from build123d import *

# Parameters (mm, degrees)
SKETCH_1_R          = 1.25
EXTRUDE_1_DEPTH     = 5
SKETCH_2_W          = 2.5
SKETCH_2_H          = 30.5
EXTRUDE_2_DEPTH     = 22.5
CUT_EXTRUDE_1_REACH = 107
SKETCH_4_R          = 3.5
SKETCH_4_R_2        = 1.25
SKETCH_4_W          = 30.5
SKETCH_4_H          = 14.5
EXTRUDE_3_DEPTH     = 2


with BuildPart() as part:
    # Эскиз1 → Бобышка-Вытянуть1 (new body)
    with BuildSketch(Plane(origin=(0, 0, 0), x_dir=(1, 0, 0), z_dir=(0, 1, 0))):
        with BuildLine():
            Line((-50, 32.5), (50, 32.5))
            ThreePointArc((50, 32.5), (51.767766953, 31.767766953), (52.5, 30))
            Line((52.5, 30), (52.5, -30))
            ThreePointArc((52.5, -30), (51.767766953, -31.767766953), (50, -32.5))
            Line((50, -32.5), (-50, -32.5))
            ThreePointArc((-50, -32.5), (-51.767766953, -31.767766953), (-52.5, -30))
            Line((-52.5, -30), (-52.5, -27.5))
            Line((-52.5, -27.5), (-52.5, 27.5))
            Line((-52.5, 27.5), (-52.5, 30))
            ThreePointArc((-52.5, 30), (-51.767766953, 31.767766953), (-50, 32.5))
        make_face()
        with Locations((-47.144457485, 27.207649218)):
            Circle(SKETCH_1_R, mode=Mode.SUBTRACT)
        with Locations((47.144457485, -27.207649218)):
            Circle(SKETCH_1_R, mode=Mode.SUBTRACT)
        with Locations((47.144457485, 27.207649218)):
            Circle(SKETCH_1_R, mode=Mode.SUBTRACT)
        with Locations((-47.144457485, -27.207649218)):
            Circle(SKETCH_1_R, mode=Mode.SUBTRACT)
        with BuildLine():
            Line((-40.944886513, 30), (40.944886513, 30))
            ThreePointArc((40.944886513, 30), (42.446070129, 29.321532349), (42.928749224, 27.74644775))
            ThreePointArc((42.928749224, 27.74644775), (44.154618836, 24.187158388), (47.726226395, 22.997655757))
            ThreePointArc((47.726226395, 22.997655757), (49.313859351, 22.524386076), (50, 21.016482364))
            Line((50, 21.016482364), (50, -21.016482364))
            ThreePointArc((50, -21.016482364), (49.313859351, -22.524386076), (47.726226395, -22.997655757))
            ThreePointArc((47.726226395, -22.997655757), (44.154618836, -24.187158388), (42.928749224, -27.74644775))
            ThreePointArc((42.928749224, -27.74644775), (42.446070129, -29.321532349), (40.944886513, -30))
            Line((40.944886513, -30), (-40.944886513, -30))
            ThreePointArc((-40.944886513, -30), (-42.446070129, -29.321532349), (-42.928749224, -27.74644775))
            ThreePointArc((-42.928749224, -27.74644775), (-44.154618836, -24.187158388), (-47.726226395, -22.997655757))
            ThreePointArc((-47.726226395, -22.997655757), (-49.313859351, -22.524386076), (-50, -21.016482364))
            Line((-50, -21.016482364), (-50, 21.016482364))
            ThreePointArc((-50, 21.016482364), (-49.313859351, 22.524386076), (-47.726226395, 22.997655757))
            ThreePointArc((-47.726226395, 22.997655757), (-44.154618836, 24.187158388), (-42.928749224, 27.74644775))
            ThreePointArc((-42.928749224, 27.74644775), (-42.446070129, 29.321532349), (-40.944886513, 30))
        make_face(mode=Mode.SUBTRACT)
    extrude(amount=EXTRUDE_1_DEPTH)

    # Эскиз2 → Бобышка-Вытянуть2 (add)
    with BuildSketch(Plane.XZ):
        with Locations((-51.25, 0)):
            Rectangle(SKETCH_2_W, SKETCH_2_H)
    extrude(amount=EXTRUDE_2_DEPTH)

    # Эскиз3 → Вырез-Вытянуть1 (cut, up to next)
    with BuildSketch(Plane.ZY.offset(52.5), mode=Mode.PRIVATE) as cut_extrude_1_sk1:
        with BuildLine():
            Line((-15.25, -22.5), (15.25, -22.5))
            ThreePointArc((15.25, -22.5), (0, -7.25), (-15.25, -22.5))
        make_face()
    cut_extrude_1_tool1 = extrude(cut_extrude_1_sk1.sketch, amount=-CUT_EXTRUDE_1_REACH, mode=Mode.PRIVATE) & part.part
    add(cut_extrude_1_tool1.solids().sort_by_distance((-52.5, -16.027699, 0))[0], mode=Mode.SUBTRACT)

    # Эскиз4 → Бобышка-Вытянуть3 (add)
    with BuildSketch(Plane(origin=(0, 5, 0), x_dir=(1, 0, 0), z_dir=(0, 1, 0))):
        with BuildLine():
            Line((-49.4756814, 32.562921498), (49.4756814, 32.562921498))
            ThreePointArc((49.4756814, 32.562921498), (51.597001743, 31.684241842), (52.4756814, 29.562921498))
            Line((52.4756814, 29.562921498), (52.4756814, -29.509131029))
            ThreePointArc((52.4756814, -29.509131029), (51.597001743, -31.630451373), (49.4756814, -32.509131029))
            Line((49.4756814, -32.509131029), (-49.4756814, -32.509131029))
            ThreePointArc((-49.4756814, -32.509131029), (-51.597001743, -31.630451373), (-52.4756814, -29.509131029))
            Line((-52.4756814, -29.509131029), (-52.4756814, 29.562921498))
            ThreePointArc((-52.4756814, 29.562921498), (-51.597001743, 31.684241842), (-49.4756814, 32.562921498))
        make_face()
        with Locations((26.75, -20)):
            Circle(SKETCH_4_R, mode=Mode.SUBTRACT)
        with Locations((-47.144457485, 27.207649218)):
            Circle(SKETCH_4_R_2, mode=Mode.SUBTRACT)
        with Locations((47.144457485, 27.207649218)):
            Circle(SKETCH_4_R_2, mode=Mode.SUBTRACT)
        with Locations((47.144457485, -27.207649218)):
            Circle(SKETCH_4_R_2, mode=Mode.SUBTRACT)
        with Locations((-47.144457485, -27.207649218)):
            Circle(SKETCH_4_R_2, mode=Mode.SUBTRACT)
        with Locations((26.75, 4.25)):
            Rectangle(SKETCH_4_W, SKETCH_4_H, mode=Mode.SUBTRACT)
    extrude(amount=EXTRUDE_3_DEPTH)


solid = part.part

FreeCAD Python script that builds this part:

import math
import FreeCAD as App
import Part
import Sketcher

doc = App.newDocument("Part")
params = doc.addObject("Spreadsheet::Sheet", "Params")
for row, (alias, value) in enumerate([
    ("sketch1_radius", "2 mm"),
    ("sketch1_diameter", "2.5 mm"),
    ("sketch1_radius2", "2.5 mm"),
    ("sketch1_width", "100 mm"),
    ("sketch1_height", "60 mm"),
    ("pad1_length", "5 mm"),
    ("sketch2_width", "2.5 mm"),
    ("sketch2_height", "30.5 mm"),
    ("pad2_length", "22.5 mm"),
    ("sketch3_radius", "15.25 mm"),
    ("sketch4_diameter", "7 mm"),
    ("sketch4_radius", "3 mm"),
    ("sketch4_diameter2", "2.5 mm"),
    ("sketch4_width", "30.5 mm"),
    ("sketch4_height", "14.5 mm"),
    ("pad3_length", "2 mm"),
], start=1):
    params.set(f"A{row}", alias)
    params.set(f"B{row}", "=" + value)
    params.setAlias(f"B{row}", alias)

body = doc.addObject("PartDesign::Body", "Body")

sketch1 = body.newObject("Sketcher::SketchObject", "Sketch")
sketch1.AttachmentSupport = (doc.getObject("XZ_Plane"), [""])
sketch1.MapMode = "FlatFace"
sketch1.addGeometry([
    Part.LineSegment(App.Vector(50, -32.5, 0), App.Vector(-50, -32.5, 0)),
    Part.ArcOfCircle(Part.Circle(App.Vector(-50, -30, 0), App.Vector(0, 0, 1), 2.5), math.radians(180), math.radians(270)),
    Part.LineSegment(App.Vector(-52.5, -30, 0), App.Vector(-52.5, 30, 0)),
    Part.ArcOfCircle(Part.Circle(App.Vector(-50, 30, 0), App.Vector(0, 0, 1), 2.5), math.radians(90), math.radians(180)),
    Part.LineSegment(App.Vector(-50, 32.5, 0), App.Vector(50, 32.5, 0)),
    Part.ArcOfCircle(Part.Circle(App.Vector(50, 30, 0), App.Vector(0, 0, 1), 2.5), math.radians(0), math.radians(90)),
    Part.LineSegment(App.Vector(52.5, 30, 0), App.Vector(52.5, -30, 0)),
    Part.ArcOfCircle(Part.Circle(App.Vector(50, -30, 0), App.Vector(0, 0, 1), 2.5), math.radians(-90), math.radians(0)),
    Part.Circle(App.Vector(47.1, 27.2, 0), App.Vector(0, 0, 1), 1.2),
    Part.Circle(App.Vector(-47.1, 27.2, 0), App.Vector(0, 0, 1), 1.2),
    Part.Circle(App.Vector(47.1, -27.2, 0), App.Vector(0, 0, 1), 1.2),
    Part.LineSegment(App.Vector(-40.9, -30, 0), App.Vector(40.9, -30, 0)),
    Part.ArcOfCircle(Part.Circle(App.Vector(40.9, -28, 0), App.Vector(0, 0, 1), 2), math.radians(-90), math.radians(7)),
    Part.ArcOfCircle(Part.Circle(App.Vector(47.1, -27.2, 0), App.Vector(0, 0, 1), 4.3), math.radians(82), math.radians(187)),
    Part.ArcOfCircle(Part.Circle(App.Vector(48, -21, 0), App.Vector(0, 0, 1), 2), math.radians(-98), math.radians(0)),
    Part.LineSegment(App.Vector(50, -21, 0), App.Vector(50, 21, 0)),
    Part.ArcOfCircle(Part.Circle(App.Vector(48, 21, 0), App.Vector(0, 0, 1), 2), math.radians(0), math.radians(98)),
    Part.ArcOfCircle(Part.Circle(App.Vector(47.1, 27.2, 0), App.Vector(0, 0, 1), 4.3), math.radians(173), math.radians(278)),
    Part.ArcOfCircle(Part.Circle(App.Vector(40.9, 28, 0), App.Vector(0, 0, 1), 2), math.radians(-7), math.radians(90)),
    Part.LineSegment(App.Vector(40.9, 30, 0), App.Vector(-40.9, 30, 0)),
    Part.ArcOfCircle(Part.Circle(App.Vector(-40.9, 28, 0), App.Vector(0, 0, 1), 2), math.radians(90), math.radians(187)),
    Part.ArcOfCircle(Part.Circle(App.Vector(-47.1, 27.2, 0), App.Vector(0, 0, 1), 4.3), math.radians(-98), math.radians(7)),
    Part.ArcOfCircle(Part.Circle(App.Vector(-48, 21, 0), App.Vector(0, 0, 1), 2), math.radians(82), math.radians(180)),
    Part.LineSegment(App.Vector(-50, 21, 0), App.Vector(-50, -21, 0)),
    Part.ArcOfCircle(Part.Circle(App.Vector(-48, -21, 0), App.Vector(0, 0, 1), 2), math.radians(-180), math.radians(-82)),
    Part.ArcOfCircle(Part.Circle(App.Vector(-47.1, -27.2, 0), App.Vector(0, 0, 1), 4.3), math.radians(-7), math.radians(98)),
    Part.ArcOfCircle(Part.Circle(App.Vector(-40.9, -28, 0), App.Vector(0, 0, 1), 2), math.radians(173), math.radians(270)),
    Part.Circle(App.Vector(-47.1, -27.2, 0), App.Vector(0, 0, 1), 1.2),
], False)
sketch1.addConstraint([
    Sketcher.Constraint("Tangent", 0, 2, 1, 2),
    Sketcher.Constraint("Tangent", 1, 1, 2, 1),
    Sketcher.Constraint("Tangent", 2, 2, 3, 2),
    Sketcher.Constraint("Tangent", 3, 1, 4, 1),
    Sketcher.Constraint("Tangent", 4, 2, 5, 2),
    Sketcher.Constraint("Tangent", 5, 1, 6, 1),
    Sketcher.Constraint("Tangent", 6, 2, 7, 2),
    Sketcher.Constraint("Tangent", 7, 1, 0, 1),
    Sketcher.Constraint("Tangent", 11, 2, 12, 1),
    Sketcher.Constraint("Tangent", 12, 2, 13, 2),
    Sketcher.Constraint("Tangent", 13, 1, 14, 1),
    Sketcher.Constraint("Tangent", 14, 2, 15, 1),
    Sketcher.Constraint("Tangent", 15, 2, 16, 1),
    Sketcher.Constraint("Tangent", 16, 2, 17, 2),
    Sketcher.Constraint("Tangent", 17, 1, 18, 1),
    Sketcher.Constraint("Tangent", 18, 2, 19, 1),
    Sketcher.Constraint("Tangent", 19, 2, 20, 1),
    Sketcher.Constraint("Tangent", 20, 2, 21, 2),
    Sketcher.Constraint("Tangent", 21, 1, 22, 1),
    Sketcher.Constraint("Tangent", 22, 2, 23, 1),
    Sketcher.Constraint("Tangent", 23, 2, 24, 1),
    Sketcher.Constraint("Tangent", 24, 2, 25, 2),
    Sketcher.Constraint("Tangent", 25, 1, 26, 1),
    Sketcher.Constraint("Tangent", 26, 2, 11, 1),
    Sketcher.Constraint("Horizontal", 0),
    Sketcher.Constraint("Vertical", 2),
    Sketcher.Constraint("Horizontal", 4),
    Sketcher.Constraint("Vertical", 6),
    Sketcher.Constraint("Horizontal", 11),
    Sketcher.Constraint("Vertical", 15),
    Sketcher.Constraint("Horizontal", 19),
    Sketcher.Constraint("Vertical", 23),
    Sketcher.Constraint("Coincident", 13, 3, 10, 3),
    Sketcher.Constraint("Coincident", 17, 3, 8, 3),
    Sketcher.Constraint("Coincident", 21, 3, 9, 3),
    Sketcher.Constraint("Coincident", 27, 3, 25, 3),
    Sketcher.Constraint("Equal", 1, 3),
    Sketcher.Constraint("Equal", 3, 5),
    Sketcher.Constraint("Equal", 5, 7),
    Sketcher.Constraint("Equal", 8, 9),
    Sketcher.Constraint("Equal", 9, 10),
    Sketcher.Constraint("Equal", 12, 14),
    Sketcher.Constraint("Equal", 14, 16),
    Sketcher.Constraint("Equal", 13, 17),
    Sketcher.Constraint("Equal", 16, 18),
    Sketcher.Constraint("Equal", 18, 20),
    Sketcher.Constraint("Equal", 17, 21),
    Sketcher.Constraint("Equal", 20, 22),
    Sketcher.Constraint("Equal", 22, 24),
    Sketcher.Constraint("Equal", 21, 25),
    Sketcher.Constraint("Equal", 24, 26),
    Sketcher.Constraint("Equal", 10, 27),
    Sketcher.Constraint("Symmetric", 1, 3, 5, 3, -1, 1),
    Sketcher.Constraint("Symmetric", 9, 3, 10, 3, -1, 1),
    Sketcher.Constraint("Symmetric", 16, 3, 24, 3, -1, 1),
    Sketcher.Constraint("Symmetric", 18, 3, 26, 3, -1, 1),
    Sketcher.Constraint("Symmetric", 8, 3, 9, 3, -2),
    Sketcher.Constraint("Horizontal", 6, 2, 11, 2),
    Sketcher.Constraint("Vertical", 7, 1, 14, 2),
    Sketcher.Constraint("Radius", 12, 2.0),
    Sketcher.Constraint("Diameter", 8, 2.5),
    Sketcher.Constraint("Radius", 1, 2.5),
    Sketcher.Constraint("DistanceX", 0, 2, 0, 1, 100.0),
    Sketcher.Constraint("DistanceY", 2, 1, 2, 2, 60.0),
    Sketcher.Constraint("Radius", 13, 4.25),
    Sketcher.Constraint("DistanceY", 10, 3, 8, 3, 54.415298),
    Sketcher.Constraint("DistanceX", 11, 1, 11, 2, 81.889773),
])
sketch1.setExpression("Constraints[59]", "Params.sketch1_radius")
sketch1.setExpression("Constraints[60]", "Params.sketch1_diameter")
sketch1.setExpression("Constraints[61]", "Params.sketch1_radius2")
sketch1.setExpression("Constraints[62]", "Params.sketch1_width")
sketch1.setExpression("Constraints[63]", "Params.sketch1_height")
pad1 = body.newObject("PartDesign::Pad", "Pad")
pad1.Profile = sketch1
pad1.setExpression("Length", "Params.pad1_length")
pad1.Reversed = True

sketch2 = body.newObject("Sketcher::SketchObject", "Sketch001")
sketch2.AttachmentSupport = (doc.getObject("XZ_Plane"), [""])
sketch2.MapMode = "FlatFace"
sketch2.addGeometry([
    Part.LineSegment(App.Vector(-52.5, 15.2, 0), App.Vector(-52.5, -15.2, 0)),
    Part.LineSegment(App.Vector(-52.5, -15.2, 0), App.Vector(-50, -15.2, 0)),
    Part.LineSegment(App.Vector(-50, -15.2, 0), App.Vector(-50, 15.2, 0)),
    Part.LineSegment(App.Vector(-50, 15.2, 0), App.Vector(-52.5, 15.2, 0)),
], False)
sketch2.addConstraint([
    Sketcher.Constraint("Coincident", 0, 2, 1, 1),
    Sketcher.Constraint("Coincident", 1, 2, 2, 1),
    Sketcher.Constraint("Coincident", 2, 2, 3, 1),
    Sketcher.Constraint("Coincident", 3, 2, 0, 1),
    Sketcher.Constraint("Vertical", 0),
    Sketcher.Constraint("Horizontal", 1),
    Sketcher.Constraint("Vertical", 2),
    Sketcher.Constraint("Horizontal", 3),
    Sketcher.Constraint("DistanceX", 1, 1, 1, 2, 2.5),
    Sketcher.Constraint("DistanceY", 0, 2, 0, 1, 30.5),
    Sketcher.Constraint("DistanceX", 1, 2, -1, 1, 50.0),
    Sketcher.Constraint("DistanceY", 0, 2, -1, 1, 15.25),
])
sketch2.setExpression("Constraints[8]", "Params.sketch2_width")
sketch2.setExpression("Constraints[9]", "Params.sketch2_height")
pad2 = body.newObject("PartDesign::Pad", "Pad001")
pad2.Profile = sketch2
pad2.setExpression("Length", "Params.pad2_length")

sketch3 = body.newObject("Sketcher::SketchObject", "Sketch002")
sketch3.AttachmentSupport = (doc.getObject("YZ_Plane"), [""])
sketch3.MapMode = "FlatFace"
sketch3.AttachmentOffset = App.Placement(App.Vector(0, 0, -52.5), App.Rotation())
sketch3.addGeometry([
    Part.LineSegment(App.Vector(-22, -15, 0), App.Vector(-22, 15, 0)),
    Part.ArcOfCircle(Part.Circle(App.Vector(-22, 0, 0), App.Vector(0, 0, 1), 15), math.radians(-90), math.radians(90)),
], False)
sketch3.addConstraint([
    Sketcher.Constraint("Coincident", 0, 1, 1, 1),
    Sketcher.Constraint("Coincident", 1, 2, 0, 2),
    Sketcher.Constraint("Vertical", 0),
    Sketcher.Constraint("PointOnObject", 1, 3, -1),
    Sketcher.Constraint("Vertical", 1, 3, 0, 1),
    Sketcher.Constraint("Radius", 1, 15.25),
    Sketcher.Constraint("DistanceX", 1, 3, -1, 1, 22.5),
])
sketch3.setExpression("Constraints[5]", "Params.sketch3_radius")
pocket1 = body.newObject("PartDesign::Pocket", "Pocket")
pocket1.Profile = sketch3
pocket1.Type = "UpToFirst"
pocket1.Reversed = True

sketch4 = body.newObject("Sketcher::SketchObject", "Sketch003")
sketch4.AttachmentSupport = (doc.getObject("XZ_Plane"), [""])
sketch4.MapMode = "FlatFace"
sketch4.AttachmentOffset = App.Placement(App.Vector(0, 0, -5), App.Rotation())
sketch4.addGeometry([
    Part.LineSegment(App.Vector(49.5, -32.6, 0), App.Vector(-49.5, -32.6, 0)),
    Part.ArcOfCircle(Part.Circle(App.Vector(-49.5, -29.6, 0), App.Vector(0, 0, 1), 3), math.radians(180), math.radians(270)),
    Part.LineSegment(App.Vector(-52.5, -29.6, 0), App.Vector(-52.5, 29.5, 0)),
    Part.ArcOfCircle(Part.Circle(App.Vector(-49.5, 29.5, 0), App.Vector(0, 0, 1), 3), math.radians(90), math.radians(180)),
    Part.LineSegment(App.Vector(-49.5, 32.5, 0), App.Vector(49.5, 32.5, 0)),
    Part.ArcOfCircle(Part.Circle(App.Vector(49.5, 29.5, 0), App.Vector(0, 0, 1), 3), math.radians(0), math.radians(90)),
    Part.LineSegment(App.Vector(52.5, 29.5, 0), App.Vector(52.5, -29.6, 0)),
    Part.ArcOfCircle(Part.Circle(App.Vector(49.5, -29.6, 0), App.Vector(0, 0, 1), 3), math.radians(-90), math.radians(0)),
    Part.Circle(App.Vector(47.1, 27.2, 0), App.Vector(0, 0, 1), 1.2),
    Part.Circle(App.Vector(26.8, 20, 0), App.Vector(0, 0, 1), 3.5),
    Part.Circle(App.Vector(-47.1, 27.2, 0), App.Vector(0, 0, 1), 1.2),
    Part.LineSegment(App.Vector(11.5, 3, 0), App.Vector(11.5, -11.5, 0)),
    Part.LineSegment(App.Vector(11.5, -11.5, 0), App.Vector(42, -11.5, 0)),
    Part.LineSegment(App.Vector(42, -11.5, 0), App.Vector(42, 3, 0)),
    Part.LineSegment(App.Vector(42, 3, 0), App.Vector(11.5, 3, 0)),
    Part.Circle(App.Vector(47.1, -27.2, 0), App.Vector(0, 0, 1), 1.2),
    Part.Circle(App.Vector(-47.1, -27.2, 0), App.Vector(0, 0, 1), 1.2),
], False)
sketch4.addConstraint([
    Sketcher.Constraint("Tangent", 0, 2, 1, 2),
    Sketcher.Constraint("Tangent", 1, 1, 2, 1),
    Sketcher.Constraint("Tangent", 2, 2, 3, 2),
    Sketcher.Constraint("Tangent", 3, 1, 4, 1),
    Sketcher.Constraint("Tangent", 4, 2, 5, 2),
    Sketcher.Constraint("Tangent", 5, 1, 6, 1),
    Sketcher.Constraint("Tangent", 6, 2, 7, 2),
    Sketcher.Constraint("Tangent", 7, 1, 0, 1),
    Sketcher.Constraint("Coincident", 11, 2, 12, 1),
    Sketcher.Constraint("Coincident", 12, 2, 13, 1),
    Sketcher.Constraint("Coincident", 13, 2, 14, 1),
    Sketcher.Constraint("Coincident", 14, 2, 11, 1),
    Sketcher.Constraint("Horizontal", 0),
    Sketcher.Constraint("Vertical", 2),
    Sketcher.Constraint("Horizontal", 4),
    Sketcher.Constraint("Vertical", 6),
    Sketcher.Constraint("Vertical", 11),
    Sketcher.Constraint("Horizontal", 12),
    Sketcher.Constraint("Vertical", 13),
    Sketcher.Constraint("Horizontal", 14),
    Sketcher.Constraint("Equal", 1, 3),
    Sketcher.Constraint("Equal", 3, 5),
    Sketcher.Constraint("Equal", 5, 7),
    Sketcher.Constraint("Equal", 8, 10),
    Sketcher.Constraint("Equal", 10, 15),
    Sketcher.Constraint("Equal", 15, 16),
    Sketcher.Constraint("Symmetric", 10, 3, 15, 3, -1, 1),
    Sketcher.Constraint("Symmetric", 8, 3, 16, 3, -1, 1),
    Sketcher.Constraint("Symmetric", 8, 3, 10, 3, -2),
    Sketcher.Constraint("Diameter", 9, 7.0),
    Sketcher.Constraint("Radius", 1, 3.0),
    Sketcher.Constraint("Diameter", 8, 2.5),
    Sketcher.Constraint("DistanceX", 12, 1, 12, 2, 30.5),
    Sketcher.Constraint("DistanceY", 11, 2, 11, 1, 14.5),
    Sketcher.Constraint("DistanceY", -1, 1, 9, 3, 20.0),
    Sketcher.Constraint("DistanceX", -1, 1, 12, 2, 42.0),
    Sketcher.Constraint("DistanceY", -1, 1, 13, 2, 3.0),
    Sketcher.Constraint("DistanceX", -1, 1, 9, 3, 26.75),
    Sketcher.Constraint("DistanceY", 15, 3, 8, 3, 54.415298),
    Sketcher.Constraint("DistanceX", 0, 2, 0, 1, 98.951363),
    Sketcher.Constraint("DistanceY", 2, 1, 2, 2, 59.072053),
    Sketcher.Constraint("DistanceX", 1, 3, -1, 1, 49.475681),
    Sketcher.Constraint("DistanceY", 1, 3, -1, 1, 29.562921),
    Sketcher.Constraint("DistanceX", 3, 3, 8, 3, 96.620139),
])
sketch4.setExpression("Constraints[29]", "Params.sketch4_diameter")
sketch4.setExpression("Constraints[30]", "Params.sketch4_radius")
sketch4.setExpression("Constraints[31]", "Params.sketch4_diameter2")
sketch4.setExpression("Constraints[32]", "Params.sketch4_width")
sketch4.setExpression("Constraints[33]", "Params.sketch4_height")
pad3 = body.newObject("PartDesign::Pad", "Pad002")
pad3.Profile = sketch4
pad3.setExpression("Length", "Params.pad3_length")
pad3.Reversed = True

doc.recompute()
